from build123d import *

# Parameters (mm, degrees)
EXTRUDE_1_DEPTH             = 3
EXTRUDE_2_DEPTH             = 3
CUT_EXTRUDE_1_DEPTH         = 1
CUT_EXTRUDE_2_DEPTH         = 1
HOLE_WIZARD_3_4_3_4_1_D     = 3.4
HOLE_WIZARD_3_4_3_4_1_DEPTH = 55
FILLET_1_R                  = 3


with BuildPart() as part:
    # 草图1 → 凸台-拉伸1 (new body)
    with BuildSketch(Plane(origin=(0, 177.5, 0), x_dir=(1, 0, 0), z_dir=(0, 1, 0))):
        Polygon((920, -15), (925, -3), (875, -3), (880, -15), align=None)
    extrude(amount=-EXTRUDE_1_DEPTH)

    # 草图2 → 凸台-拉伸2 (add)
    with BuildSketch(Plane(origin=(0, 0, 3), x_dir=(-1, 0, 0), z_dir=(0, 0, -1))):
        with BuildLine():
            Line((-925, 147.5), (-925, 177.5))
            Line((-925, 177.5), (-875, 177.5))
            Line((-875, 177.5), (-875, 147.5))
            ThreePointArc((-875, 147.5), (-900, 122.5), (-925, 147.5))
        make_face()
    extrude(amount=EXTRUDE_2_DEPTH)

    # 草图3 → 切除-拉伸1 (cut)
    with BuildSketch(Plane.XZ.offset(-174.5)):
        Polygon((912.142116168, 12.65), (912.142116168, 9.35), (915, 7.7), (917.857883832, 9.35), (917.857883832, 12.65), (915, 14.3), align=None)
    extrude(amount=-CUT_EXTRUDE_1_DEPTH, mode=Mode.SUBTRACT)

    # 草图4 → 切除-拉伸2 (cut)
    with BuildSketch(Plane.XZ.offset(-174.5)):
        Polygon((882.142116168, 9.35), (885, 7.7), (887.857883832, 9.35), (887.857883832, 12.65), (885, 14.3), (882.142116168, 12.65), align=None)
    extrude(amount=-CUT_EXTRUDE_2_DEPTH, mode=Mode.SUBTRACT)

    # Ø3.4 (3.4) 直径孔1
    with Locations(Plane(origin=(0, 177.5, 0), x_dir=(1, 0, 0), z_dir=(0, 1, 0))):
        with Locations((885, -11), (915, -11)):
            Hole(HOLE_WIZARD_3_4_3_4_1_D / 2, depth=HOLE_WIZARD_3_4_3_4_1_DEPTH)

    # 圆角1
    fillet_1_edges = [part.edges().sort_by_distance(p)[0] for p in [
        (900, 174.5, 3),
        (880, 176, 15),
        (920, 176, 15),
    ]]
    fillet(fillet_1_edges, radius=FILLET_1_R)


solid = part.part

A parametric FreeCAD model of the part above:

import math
import FreeCAD as App
import Part
import Sketcher
from FreeCAD import Vector
Q = App.Units.Quantity


def edges_at(feature, points):
    """Names of the edges that pass closest to the given points."""
    edges = feature.Shape.Edges
    near = lambda p: min(range(len(edges)), key=lambda i: edges[i].distToShape(Part.Vertex(*p))[0])
    return sorted({f"Edge{near(p) + 1}" for p in points})

doc = App.newDocument("Part")
params = doc.addObject("Spreadsheet::Sheet", "Params")
for row, (alias, value) in enumerate([
    ("sketch1_width", "50 mm"),
    ("sketch1_width2", "40 mm"),
    ("sketch1_length", "13 mm"),
    ("pad1_length", "3 mm"),
    ("sketch2_radius", "25 mm"),
    ("sketch2_height", "30 mm"),
    ("pad2_length", "3 mm"),
    ("sketch3_height", "3.3 mm"),
    ("sketch3_length", "3.3 mm"),
    ("pocket1_length", "1 mm"),
    ("sketch4_height", "3.3 mm"),
    ("sketch4_length", "3.3 mm"),
    ("pocket2_length", "1 mm"),
    ("sketch5_diameter", "3.4 mm"),
    ("hole_diameter", "3.4 mm"),
    ("hole_depth", "55 mm"),
    ("fillet_radius", "3 mm"),
], start=1):
    params.set(f"A{row}", alias)
    params.set(f"B{row}", "=" + value)
    params.setAlias(f"B{row}", alias)

body = doc.addObject("PartDesign::Body", "Body")

# Sketch on XZ plane
sketch1 = body.newObject("Sketcher::SketchObject", "Sketch")
sketch1.AttachmentSupport = (doc.getObject("XZ_Plane"), [""])
sketch1.MapMode = "FlatFace"
sketch1.AttachmentOffset = App.Placement(Vector(0, 0, -177.5), App.Rotation())
sketch1.addGeometry(Part.LineSegment(Vector(920, 15, 0), Vector(925, 3, 0)), False)
sketch1.addGeometry(Part.LineSegment(Vector(925, 3, 0), Vector(875, 3, 0)), False)
sketch1.addGeometry(Part.LineSegment(Vector(875, 3, 0), Vector(880, 15, 0)), False)
sketch1.addGeometry(Part.LineSegment(Vector(880, 15, 0), Vector(920, 15, 0)), False)
sketch1.addConstraint(Sketcher.Constraint("Coincident", 0, 2, 1, 1))
sketch1.addConstraint(Sketcher.Constraint("Coincident", 1, 2, 2, 1))
sketch1.addConstraint(Sketcher.Constraint("Coincident", 2, 2, 3, 1))
sketch1.addConstraint(Sketcher.Constraint("Coincident", 3, 2, 0, 1))
sketch1.addConstraint(Sketcher.Constraint("Horizontal", 1))
sketch1.addConstraint(Sketcher.Constraint("Horizontal", 3))
sketch1.addConstraint(Sketcher.Constraint("Equal", 0, 2))
sketch1.addConstraint(Sketcher.Constraint("DistanceX", 1, 2, 1, 1, Q("50 mm")))
sketch1.addConstraint(Sketcher.Constraint("DistanceX", 3, 1, 3, 2, Q("40 mm")))
sketch1.addConstraint(Sketcher.Constraint("Distance", 0, Q("13 mm")))
sketch1.addConstraint(Sketcher.Constraint("DistanceX", -1, 1, 0, 2, Q("925 mm")))
sketch1.addConstraint(Sketcher.Constraint("DistanceY", -1, 1, 0, 2, Q("3 mm")))
sketch1.setExpression("Constraints[7]", "Params.sketch1_width")
sketch1.setExpression("Constraints[8]", "Params.sketch1_width2")
sketch1.setExpression("Constraints[9]", "Params.sketch1_length")
pad1 = body.newObject("PartDesign::Pad", "Pad")
pad1.Profile = sketch1
pad1.setExpression("Length", "Params.pad1_length")

# Sketch on XY plane
sketch2 = body.newObject("Sketcher::SketchObject", "Sketch001")
sketch2.AttachmentSupport = (doc.getObject("XY_Plane"), [""])
sketch2.MapMode = "FlatFace"
sketch2.AttachmentOffset = App.Placement(Vector(0, 0, 3), App.Rotation())
sketch2.addGeometry(Part.LineSegment(Vector(925, 178, 0), Vector(925, 148, 0)), False)
sketch2.addGeometry(Part.ArcOfCircle(Part.Circle(Vector(900, 148, 0), Vector(0, 0, 1), 25), math.radians(180), math.radians(360)), False)
sketch2.addGeometry(Part.LineSegment(Vector(875, 148, 0), Vector(875, 178, 0)), False)
sketch2.addGeometry(Part.LineSegment(Vector(875, 178, 0), Vector(925, 178, 0)), False)
sketch2.addConstraint(Sketcher.Constraint("Tangent", 0, 2, 1, 2))
sketch2.addConstraint(Sketcher.Constraint("Tangent", 1, 1, 2, 1))
sketch2.addConstraint(Sketcher.Constraint("Coincident", 2, 2, 3, 1))
sketch2.addConstraint(Sketcher.Constraint("Coincident", 3, 2, 0, 1))
sketch2.addConstraint(Sketcher.Constraint("Vertical", 0))
sketch2.addConstraint(Sketcher.Constraint("Vertical", 2))
sketch2.addConstraint(Sketcher.Constraint("Horizontal", 3))
sketch2.addConstraint(Sketcher.Constraint("Radius", 1, Q("25 mm")))
sketch2.addConstraint(Sketcher.Constraint("DistanceY", 0, 2, 0, 1, Q("30 mm")))
sketch2.addConstraint(Sketcher.Constraint("DistanceX", -1, 1, 1, 3, Q("900 mm")))
sketch2.addConstraint(Sketcher.Constraint("DistanceY", -1, 1, 1, 3, Q("147.5 mm")))
sketch2.setExpression("Constraints[7]", "Params.sketch2_radius")
sketch2.setExpression("Constraints[8]", "Params.sketch2_height")
pad2 = body.newObject("PartDesign::Pad", "Pad001")
pad2.Profile = sketch2
pad2.setExpression("Length", "Params.pad2_length")
pad2.Reversed = True

# Sketch on XZ plane
sketch3 = body.newObject("Sketcher::SketchObject", "Sketch002")
sketch3.AttachmentSupport = (doc.getObject("XZ_Plane"), [""])
sketch3.MapMode = "FlatFace"
sketch3.AttachmentOffset = App.Placement(Vector(0, 0, -174.5), App.Rotation())
sketch3.addGeometry(Part.LineSegment(Vector(912.1, 12.7, 0), Vector(912.1, 9.3, 0)), False)
sketch3.addGeometry(Part.LineSegment(Vector(912.1, 9.3, 0), Vector(915, 7.7, 0)), False)
sketch3.addGeometry(Part.LineSegment(Vector(915, 7.7, 0), Vector(917.9, 9.3, 0)), False)
sketch3.addGeometry(Part.LineSegment(Vector(917.9, 9.3, 0), Vector(917.9, 12.7, 0)), False)
sketch3.addGeometry(Part.LineSegment(Vector(917.9, 12.7, 0), Vector(915, 14.3, 0)), False)
sketch3.addGeometry(Part.LineSegment(Vector(915, 14.3, 0), Vector(912.1, 12.7, 0)), False)
sketch3.addConstraint(Sketcher.Constraint("Coincident", 0, 2, 1, 1))
sketch3.addConstraint(Sketcher.Constraint("Coincident", 1, 2, 2, 1))
sketch3.addConstraint(Sketcher.Constraint("Coincident", 2, 2, 3, 1))
sketch3.addConstraint(Sketcher.Constraint("Coincident", 3, 2, 4, 1))
sketch3.addConstraint(Sketcher.Constraint("Coincident", 4, 2, 5, 1))
sketch3.addConstraint(Sketcher.Constraint("Coincident", 5, 2, 0, 1))
sketch3.addConstraint(Sketcher.Constraint("Vertical", 0))
sketch3.addConstraint(Sketcher.Constraint("Vertical", 3))
sketch3.addConstraint(Sketcher.Constraint("Parallel", 1, 4))
sketch3.addConstraint(Sketcher.Constraint("Parallel", 2, 5))
sketch3.addConstraint(Sketcher.Constraint("Horizontal", 0, 2, 2, 2))
sketch3.addConstraint(Sketcher.Constraint("Horizontal", 3, 2, 5, 2))
sketch3.addConstraint(Sketcher.Constraint("Vertical", 1, 2, 4, 2))
sketch3.addConstraint(Sketcher.Constraint("Angle", 1, Q("-30 deg")))
sketch3.addConstraint(Sketcher.Constraint("DistanceY", 0, 2, 0, 1, Q("3.3 mm")))
sketch3.addConstraint(Sketcher.Constraint("DistanceX", -1, 1, 1, 2, Q("915 mm")))
sketch3.addConstraint(Sketcher.Constraint("Distance", 1, Q("3.3 mm")))
sketch3.addConstraint(Sketcher.Constraint("DistanceY", -1, 1, 1, 2, Q("7.7 mm")))
sketch3.setExpression("Constraints[14]", "Params.sketch3_height")
sketch3.setExpression("Constraints[16]", "Params.sketch3_length")
pocket1 = body.newObject("PartDesign::Pocket", "Pocket")
pocket1.Profile = sketch3
pocket1.setExpression("Length", "Params.pocket1_length")

# Sketch on XZ plane
sketch4 = body.newObject("Sketcher::SketchObject", "Sketch003")
sketch4.AttachmentSupport = (doc.getObject("XZ_Plane"), [""])
sketch4.MapMode = "FlatFace"
sketch4.AttachmentOffset = App.Placement(Vector(0, 0, -174.5), App.Rotation())
sketch4.addGeometry(Part.LineSegment(Vector(882.1, 9.3, 0), Vector(885, 7.7, 0)), False)
sketch4.addGeometry(Part.LineSegment(Vector(885, 7.7, 0), Vector(887.9, 9.3, 0)), False)
sketch4.addGeometry(Part.LineSegment(Vector(887.9, 9.3, 0), Vector(887.9, 12.7, 0)), False)
sketch4.addGeometry(Part.LineSegment(Vector(887.9, 12.7, 0), Vector(885, 14.3, 0)), False)
sketch4.addGeometry(Part.LineSegment(Vector(885, 14.3, 0), Vector(882.1, 12.7, 0)), False)
sketch4.addGeometry(Part.LineSegment(Vector(882.1, 12.7, 0), Vector(882.1, 9.3, 0)), False)
sketch4.addConstraint(Sketcher.Constraint("Coincident", 0, 2, 1, 1))
sketch4.addConstraint(Sketcher.Constraint("Coincident", 1, 2, 2, 1))
sketch4.addConstraint(Sketcher.Constraint("Coincident", 2, 2, 3, 1))
sketch4.addConstraint(Sketcher.Constraint("Coincident", 3, 2, 4, 1))
sketch4.addConstraint(Sketcher.Constraint("Coincident", 4, 2, 5, 1))
sketch4.addConstraint(Sketcher.Constraint("Coincident", 5, 2, 0, 1))
sketch4.addConstraint(Sketcher.Constraint("Vertical", 2))
sketch4.addConstraint(Sketcher.Constraint("Vertical", 5))
sketch4.addConstraint(Sketcher.Constraint("Parallel", 0, 3))
sketch4.addConstraint(Sketcher.Constraint("Parallel", 1, 4))
sketch4.addConstraint(Sketcher.Constraint("Horizontal", 2, 2, 4, 2))
sketch4.addConstraint(Sketcher.Constraint("Horizontal", 1, 2, 5, 2))
sketch4.addConstraint(Sketcher.Constraint("Vertical", 0, 2, 3, 2))
sketch4.addConstraint(Sketcher.Constraint("Angle", 0, Q("-30 deg")))
sketch4.addConstraint(Sketcher.Constraint("DistanceY", 2, 1, 2, 2, Q("3.3 mm")))
sketch4.addConstraint(Sketcher.Constraint("DistanceX", -1, 1, 0, 2, Q("885 mm")))
sketch4.addConstraint(Sketcher.Constraint("Distance", 0, Q("3.3 mm")))
sketch4.addConstraint(Sketcher.Constraint("DistanceY", -1, 1, 0, 2, Q("7.7 mm")))
sketch4.setExpression("Constraints[14]", "Params.sketch4_height")
sketch4.setExpression("Constraints[16]", "Params.sketch4_length")
pocket2 = body.newObject("PartDesign::Pocket", "Pocket001")
pocket2.Profile = sketch4
pocket2.setExpression("Length", "Params.pocket2_length")

# Sketch on XZ plane
sketch5 = body.newObject("Sketcher::SketchObject", "Sketch004")
sketch5.AttachmentSupport = (doc.getObject("XZ_Plane"), [""])
sketch5.MapMode = "FlatFace"
sketch5.AttachmentOffset = App.Placement(Vector(0, 0, -177.5), App.Rotation())
sketch5.addGeometry(Part.Circle(Vector(885, 11, 0), Vector(0, 0, 1), 1.7), False)
sketch5.addGeometry(Part.Circle(Vector(915, 11, 0), Vector(0, 0, 1), 1.7), False)
sketch5.addConstraint(Sketcher.Constraint("Equal", 0, 1))
sketch5.addConstraint(Sketcher.Constraint("Horizontal", 0, 3, 1, 3))
sketch5.addConstraint(Sketcher.Constraint("Diameter", 0, Q("3.4 mm")))
sketch5.addConstraint(Sketcher.Constraint("DistanceX", -1, 1, 0, 3, Q("885 mm")))
sketch5.addConstraint(Sketcher.Constraint("DistanceY", -1, 1, 0, 3, Q("11 mm")))
sketch5.addConstraint(Sketcher.Constraint("DistanceX", -1, 1, 1, 3, Q("915 mm")))
sketch5.setExpression("Constraints[2]", "Params.sketch5_diameter")
doc.recompute()
hole = body.newObject("PartDesign::Hole", "Hole")
hole.Profile = sketch5
hole.ThreadType = "None"
hole.setExpression("Diameter", "Params.hole_diameter")
hole.DepthType = "Dimension"
hole.setExpression("Depth", "Params.hole_depth")
hole.DrillPoint = "Flat"
hole.Reversed = True
doc.recompute()

fillet = body.newObject("PartDesign::Fillet", "Fillet")
fillet.Base = (hole, edges_at(hole, [(900, 174.5, 3), (880, 176, 15), (920, 176, 15)]))
fillet.setExpression("Radius", "Params.fillet_radius")

doc.recompute()
